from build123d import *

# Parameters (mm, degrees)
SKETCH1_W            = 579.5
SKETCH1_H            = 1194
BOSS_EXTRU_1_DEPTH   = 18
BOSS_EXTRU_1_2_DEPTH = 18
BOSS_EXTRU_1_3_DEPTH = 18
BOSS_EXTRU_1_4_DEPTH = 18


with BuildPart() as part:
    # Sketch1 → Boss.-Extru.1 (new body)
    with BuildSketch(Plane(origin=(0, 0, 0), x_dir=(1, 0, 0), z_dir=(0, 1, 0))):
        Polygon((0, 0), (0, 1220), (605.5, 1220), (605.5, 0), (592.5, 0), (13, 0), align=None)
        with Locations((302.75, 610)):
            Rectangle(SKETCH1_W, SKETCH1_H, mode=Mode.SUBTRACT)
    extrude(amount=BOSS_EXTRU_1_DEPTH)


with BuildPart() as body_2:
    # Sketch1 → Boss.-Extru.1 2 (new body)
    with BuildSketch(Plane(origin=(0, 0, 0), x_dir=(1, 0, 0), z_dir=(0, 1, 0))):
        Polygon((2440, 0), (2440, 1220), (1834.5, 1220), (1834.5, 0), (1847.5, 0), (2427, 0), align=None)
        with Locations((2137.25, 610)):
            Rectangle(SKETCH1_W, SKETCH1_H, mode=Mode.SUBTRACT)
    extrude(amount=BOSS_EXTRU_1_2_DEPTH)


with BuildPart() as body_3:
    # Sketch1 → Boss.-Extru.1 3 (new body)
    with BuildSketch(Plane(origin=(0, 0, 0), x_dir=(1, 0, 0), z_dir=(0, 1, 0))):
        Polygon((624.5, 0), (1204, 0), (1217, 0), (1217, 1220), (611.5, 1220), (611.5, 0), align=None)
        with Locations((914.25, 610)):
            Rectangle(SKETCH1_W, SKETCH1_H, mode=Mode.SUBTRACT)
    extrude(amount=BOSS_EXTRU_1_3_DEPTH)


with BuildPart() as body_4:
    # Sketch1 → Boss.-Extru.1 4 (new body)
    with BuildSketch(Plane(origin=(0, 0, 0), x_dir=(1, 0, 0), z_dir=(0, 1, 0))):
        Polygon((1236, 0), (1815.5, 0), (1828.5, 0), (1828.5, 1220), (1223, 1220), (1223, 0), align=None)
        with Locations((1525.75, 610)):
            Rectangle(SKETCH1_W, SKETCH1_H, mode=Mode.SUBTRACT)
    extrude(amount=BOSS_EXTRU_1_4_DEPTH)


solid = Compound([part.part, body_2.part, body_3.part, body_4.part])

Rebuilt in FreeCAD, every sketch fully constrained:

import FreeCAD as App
import Part
import Sketcher

V = App.Vector
Q = App.Units.Quantity

doc = App.newDocument("Part")
body = doc.addObject("PartDesign::Body", "Body")

sketch1 = body.newObject("Sketcher::SketchObject", "Sketch")
sketch1.AttachmentSupport = (doc.getObject("XZ_Plane"), [""])
sketch1.MapMode = "FlatFace"
sketch1.addGeometry([
    Part.LineSegment(V(0, -1220, 0), V(0, 0, 0)),
    Part.LineSegment(V(0, 0, 0), V(605.5, 0, 0)),
    Part.LineSegment(V(605.5, 0, 0), V(605.5, -1220, 0)),
    Part.LineSegment(V(605.5, -1220, 0), V(0, -1220, 0)),
    Part.LineSegment(V(13, -13, 0), V(13, -1207, 0)),
    Part.LineSegment(V(13, -1207, 0), V(592.5, -1207, 0)),
    Part.LineSegment(V(592.5, -1207, 0), V(592.5, -13, 0)),
    Part.LineSegment(V(592.5, -13, 0), V(13, -13, 0)),
], False)
sketch1.addConstraint([
    Sketcher.Constraint("Coincident", 0, 2, 1, 1),
    Sketcher.Constraint("Coincident", 1, 2, 2, 1),
    Sketcher.Constraint("Coincident", 2, 2, 3, 1),
    Sketcher.Constraint("Coincident", 3, 2, 0, 1),
    Sketcher.Constraint("Coincident", 4, 2, 5, 1),
    Sketcher.Constraint("Coincident", 5, 2, 6, 1),
    Sketcher.Constraint("Coincident", 6, 2, 7, 1),
    Sketcher.Constraint("Coincident", 7, 2, 4, 1),
    Sketcher.Constraint("Vertical", 0),
    Sketcher.Constraint("Horizontal", 1),
    Sketcher.Constraint("Vertical", 2),
    Sketcher.Constraint("Horizontal", 3),
    Sketcher.Constraint("Vertical", 4),
    Sketcher.Constraint("Horizontal", 5),
    Sketcher.Constraint("Vertical", 6),
    Sketcher.Constraint("Horizontal", 7),
    Sketcher.Constraint("Coincident", 0, 2, -1, 1),
    Sketcher.Constraint("DistanceY", 0, 1, 0, 2, Q("1220 mm")),
    Sketcher.Constraint("DistanceY", 4, 2, 4, 1, Q("1194 mm")),
    Sketcher.Constraint("DistanceX", 1, 1, 1, 2, Q("605.5 mm")),
    Sketcher.Constraint("DistanceX", 5, 1, 5, 2, Q("579.5 mm")),
    Sketcher.Constraint("DistanceX", -1, 1, 4, 2, Q("13 mm")),
    Sketcher.Constraint("DistanceY", 4, 2, -1, 1, Q("1207 mm")),
])
pad1 = body.newObject("PartDesign::Pad", "Pad")
pad1.Profile = sketch1
pad1.Length = 18
pad1.Reversed = True
body2 = doc.addObject("PartDesign::Body", "Body001")

sketch2 = body2.newObject("Sketcher::SketchObject", "Sketch001")
sketch2.AttachmentSupport = (doc.getObject("XZ_Plane001"), [""])
sketch2.MapMode = "FlatFace"
sketch2.addGeometry([
    Part.LineSegment(V(2440, 0, 0), V(2440, -1220, 0)),
    Part.LineSegment(V(2440, -1220, 0), V(1834.5, -1220, 0)),
    Part.LineSegment(V(1834.5, -1220, 0), V(1834.5, 0, 0)),
    Part.LineSegment(V(1834.5, 0, 0), V(2440, 0, 0)),
    Part.LineSegment(V(2427, -13, 0), V(1847.5, -13, 0)),
    Part.LineSegment(V(1847.5, -13, 0), V(1847.5, -1207, 0)),
    Part.LineSegment(V(1847.5, -1207, 0), V(2427, -1207, 0)),
    Part.LineSegment(V(2427, -1207, 0), V(2427, -13, 0)),
], False)
sketch2.addConstraint([
    Sketcher.Constraint("Coincident", 0, 2, 1, 1),
    Sketcher.Constraint("Coincident", 1, 2, 2, 1),
    Sketcher.Constraint("Coincident", 2, 2, 3, 1),
    Sketcher.Constraint("Coincident", 3, 2, 0, 1),
    Sketcher.Constraint("Coincident", 4, 2, 5, 1),
    Sketcher.Constraint("Coincident", 5, 2, 6, 1),
    Sketcher.Constraint("Coincident", 6, 2, 7, 1),
    Sketcher.Constraint("Coincident", 7, 2, 4, 1),
    Sketcher.Constraint("Vertical", 0),
    Sketcher.Constraint("Horizontal", 1),
    Sketcher.Constraint("Vertical", 2),
    Sketcher.Constraint("Horizontal", 3),
    Sketcher.Constraint("Horizontal", 4),
    Sketcher.Constraint("Vertical", 5),
    Sketcher.Constraint("Horizontal", 6),
    Sketcher.Constraint("Vertical", 7),
    Sketcher.Constraint("PointOnObject", 2, 2, -1),
    Sketcher.Constraint("DistanceY", 0, 2, 0, 1, Q("1220 mm")),
    Sketcher.Constraint("DistanceY", 5, 2, 5, 1, Q("1194 mm")),
    Sketcher.Constraint("DistanceX", 1, 2, 1, 1, Q("605.5 mm")),
    Sketcher.Constraint("DistanceX", 4, 2, 4, 1, Q("579.5 mm")),
    Sketcher.Constraint("DistanceX", -1, 1, 0, 2, Q("2440 mm")),
    Sketcher.Constraint("DistanceY", 4, 2, -1, 1, Q("13 mm")),
    Sketcher.Constraint("DistanceX", -1, 1, 6, 2, Q("2427 mm")),
])
pad2 = body2.newObject("PartDesign::Pad", "Pad001")
pad2.Profile = sketch2
pad2.Length = 18
pad2.Reversed = True
body3 = doc.addObject("PartDesign::Body", "Body002")

sketch3 = body3.newObject("Sketcher::SketchObject", "Sketch002")
sketch3.AttachmentSupport = (doc.getObject("XZ_Plane002"), [""])
sketch3.MapMode = "FlatFace"
sketch3.addGeometry([
    Part.LineSegment(V(1217, 0, 0), V(1217, -1220, 0)),
    Part.LineSegment(V(1217, -1220, 0), V(611.5, -1220, 0)),
    Part.LineSegment(V(611.5, -1220, 0), V(611.5, 0, 0)),
    Part.LineSegment(V(611.5, 0, 0), V(1217, 0, 0)),
    Part.LineSegment(V(1204, -13, 0), V(624.5, -13, 0)),
    Part.LineSegment(V(624.5, -13, 0), V(624.5, -1207, 0)),
    Part.LineSegment(V(624.5, -1207, 0), V(1204, -1207, 0)),
    Part.LineSegment(V(1204, -1207, 0), V(1204, -13, 0)),
], False)
sketch3.addConstraint([
    Sketcher.Constraint("Coincident", 0, 2, 1, 1),
    Sketcher.Constraint("Coincident", 1, 2, 2, 1),
    Sketcher.Constraint("Coincident", 2, 2, 3, 1),
    Sketcher.Constraint("Coincident", 3, 2, 0, 1),
    Sketcher.Constraint("Coincident", 4, 2, 5, 1),
    Sketcher.Constraint("Coincident", 5, 2, 6, 1),
    Sketcher.Constraint("Coincident", 6, 2, 7, 1),
    Sketcher.Constraint("Coincident", 7, 2, 4, 1),
    Sketcher.Constraint("Vertical", 0),
    Sketcher.Constraint("Horizontal", 1),
    Sketcher.Constraint("Vertical", 2),
    Sketcher.Constraint("Horizontal", 3),
    Sketcher.Constraint("Horizontal", 4),
    Sketcher.Constraint("Vertical", 5),
    Sketcher.Constraint("Horizontal", 6),
    Sketcher.Constraint("Vertical", 7),
    Sketcher.Constraint("PointOnObject", 2, 2, -1),
    Sketcher.Constraint("DistanceY", 0, 2, 0, 1, Q("1220 mm")),
    Sketcher.Constraint("DistanceY", 5, 2, 5, 1, Q("1194 mm")),
    Sketcher.Constraint("DistanceX", 1, 2, 1, 1, Q("605.5 mm")),
    Sketcher.Constraint("DistanceX", 4, 2, 4, 1, Q("579.5 mm")),
    Sketcher.Constraint("DistanceX", -1, 1, 0, 2, Q("1217 mm")),
    Sketcher.Constraint("DistanceY", 4, 2, -1, 1, Q("13 mm")),
    Sketcher.Constraint("DistanceX", -1, 1, 6, 2, Q("1204 mm")),
])
pad3 = body3.newObject("PartDesign::Pad", "Pad002")
pad3.Profile = sketch3
pad3.Length = 18
pad3.Reversed = True
body4 = doc.addObject("PartDesign::Body", "Body003")

sketch4 = body4.newObject("Sketcher::SketchObject", "Sketch003")
sketch4.AttachmentSupport = (doc.getObject("XZ_Plane003"), [""])
sketch4.MapMode = "FlatFace"
sketch4.addGeometry([
    Part.LineSegment(V(1828.5, 0, 0), V(1828.5, -1220, 0)),
    Part.LineSegment(V(1828.5, -1220, 0), V(1223, -1220, 0)),
    Part.LineSegment(V(1223, -1220, 0), V(1223, 0, 0)),
    Part.LineSegment(V(1223, 0, 0), V(1828.5, 0, 0)),
    Part.LineSegment(V(1815.5, -13, 0), V(1236, -13, 0)),
    Part.LineSegment(V(1236, -13, 0), V(1236, -1207, 0)),
    Part.LineSegment(V(1236, -1207, 0), V(1815.5, -1207, 0)),
    Part.LineSegment(V(1815.5, -1207, 0), V(1815.5, -13, 0)),
], False)
sketch4.addConstraint([
    Sketcher.Constraint("Coincident", 0, 2, 1, 1),
    Sketcher.Constraint("Coincident", 1, 2, 2, 1),
    Sketcher.Constraint("Coincident", 2, 2, 3, 1),
    Sketcher.Constraint("Coincident", 3, 2, 0, 1),
    Sketcher.Constraint("Coincident", 4, 2, 5, 1),
    Sketcher.Constraint("Coincident", 5, 2, 6, 1),
    Sketcher.Constraint("Coincident", 6, 2, 7, 1),
    Sketcher.Constraint("Coincident", 7, 2, 4, 1),
    Sketcher.Constraint("Vertical", 0),
    Sketcher.Constraint("Horizontal", 1),
    Sketcher.Constraint("Vertical", 2),
    Sketcher.Constraint("Horizontal", 3),
    Sketcher.Constraint("Horizontal", 4),
    Sketcher.Constraint("Vertical", 5),
    Sketcher.Constraint("Horizontal", 6),
    Sketcher.Constraint("Vertical", 7),
    Sketcher.Constraint("PointOnObject", 2, 2, -1),
    Sketcher.Constraint("DistanceY", 0, 2, 0, 1, Q("1220 mm")),
    Sketcher.Constraint("DistanceY", 5, 2, 5, 1, Q("1194 mm")),
    Sketcher.Constraint("DistanceX", 1, 2, 1, 1, Q("605.5 mm")),
    Sketcher.Constraint("DistanceX", 4, 2, 4, 1, Q("579.5 mm")),
    Sketcher.Constraint("DistanceX", -1, 1, 1, 2, Q("1223 mm")),
    Sketcher.Constraint("DistanceX", -1, 1, 4, 2, Q("1236 mm")),
    Sketcher.Constraint("DistanceY", 4, 2, -1, 1, Q("13 mm")),
])
pad4 = body4.newObject("PartDesign::Pad", "Pad003")
pad4.Profile = sketch4
pad4.Length = 18
pad4.Reversed = True

doc.recompute()
